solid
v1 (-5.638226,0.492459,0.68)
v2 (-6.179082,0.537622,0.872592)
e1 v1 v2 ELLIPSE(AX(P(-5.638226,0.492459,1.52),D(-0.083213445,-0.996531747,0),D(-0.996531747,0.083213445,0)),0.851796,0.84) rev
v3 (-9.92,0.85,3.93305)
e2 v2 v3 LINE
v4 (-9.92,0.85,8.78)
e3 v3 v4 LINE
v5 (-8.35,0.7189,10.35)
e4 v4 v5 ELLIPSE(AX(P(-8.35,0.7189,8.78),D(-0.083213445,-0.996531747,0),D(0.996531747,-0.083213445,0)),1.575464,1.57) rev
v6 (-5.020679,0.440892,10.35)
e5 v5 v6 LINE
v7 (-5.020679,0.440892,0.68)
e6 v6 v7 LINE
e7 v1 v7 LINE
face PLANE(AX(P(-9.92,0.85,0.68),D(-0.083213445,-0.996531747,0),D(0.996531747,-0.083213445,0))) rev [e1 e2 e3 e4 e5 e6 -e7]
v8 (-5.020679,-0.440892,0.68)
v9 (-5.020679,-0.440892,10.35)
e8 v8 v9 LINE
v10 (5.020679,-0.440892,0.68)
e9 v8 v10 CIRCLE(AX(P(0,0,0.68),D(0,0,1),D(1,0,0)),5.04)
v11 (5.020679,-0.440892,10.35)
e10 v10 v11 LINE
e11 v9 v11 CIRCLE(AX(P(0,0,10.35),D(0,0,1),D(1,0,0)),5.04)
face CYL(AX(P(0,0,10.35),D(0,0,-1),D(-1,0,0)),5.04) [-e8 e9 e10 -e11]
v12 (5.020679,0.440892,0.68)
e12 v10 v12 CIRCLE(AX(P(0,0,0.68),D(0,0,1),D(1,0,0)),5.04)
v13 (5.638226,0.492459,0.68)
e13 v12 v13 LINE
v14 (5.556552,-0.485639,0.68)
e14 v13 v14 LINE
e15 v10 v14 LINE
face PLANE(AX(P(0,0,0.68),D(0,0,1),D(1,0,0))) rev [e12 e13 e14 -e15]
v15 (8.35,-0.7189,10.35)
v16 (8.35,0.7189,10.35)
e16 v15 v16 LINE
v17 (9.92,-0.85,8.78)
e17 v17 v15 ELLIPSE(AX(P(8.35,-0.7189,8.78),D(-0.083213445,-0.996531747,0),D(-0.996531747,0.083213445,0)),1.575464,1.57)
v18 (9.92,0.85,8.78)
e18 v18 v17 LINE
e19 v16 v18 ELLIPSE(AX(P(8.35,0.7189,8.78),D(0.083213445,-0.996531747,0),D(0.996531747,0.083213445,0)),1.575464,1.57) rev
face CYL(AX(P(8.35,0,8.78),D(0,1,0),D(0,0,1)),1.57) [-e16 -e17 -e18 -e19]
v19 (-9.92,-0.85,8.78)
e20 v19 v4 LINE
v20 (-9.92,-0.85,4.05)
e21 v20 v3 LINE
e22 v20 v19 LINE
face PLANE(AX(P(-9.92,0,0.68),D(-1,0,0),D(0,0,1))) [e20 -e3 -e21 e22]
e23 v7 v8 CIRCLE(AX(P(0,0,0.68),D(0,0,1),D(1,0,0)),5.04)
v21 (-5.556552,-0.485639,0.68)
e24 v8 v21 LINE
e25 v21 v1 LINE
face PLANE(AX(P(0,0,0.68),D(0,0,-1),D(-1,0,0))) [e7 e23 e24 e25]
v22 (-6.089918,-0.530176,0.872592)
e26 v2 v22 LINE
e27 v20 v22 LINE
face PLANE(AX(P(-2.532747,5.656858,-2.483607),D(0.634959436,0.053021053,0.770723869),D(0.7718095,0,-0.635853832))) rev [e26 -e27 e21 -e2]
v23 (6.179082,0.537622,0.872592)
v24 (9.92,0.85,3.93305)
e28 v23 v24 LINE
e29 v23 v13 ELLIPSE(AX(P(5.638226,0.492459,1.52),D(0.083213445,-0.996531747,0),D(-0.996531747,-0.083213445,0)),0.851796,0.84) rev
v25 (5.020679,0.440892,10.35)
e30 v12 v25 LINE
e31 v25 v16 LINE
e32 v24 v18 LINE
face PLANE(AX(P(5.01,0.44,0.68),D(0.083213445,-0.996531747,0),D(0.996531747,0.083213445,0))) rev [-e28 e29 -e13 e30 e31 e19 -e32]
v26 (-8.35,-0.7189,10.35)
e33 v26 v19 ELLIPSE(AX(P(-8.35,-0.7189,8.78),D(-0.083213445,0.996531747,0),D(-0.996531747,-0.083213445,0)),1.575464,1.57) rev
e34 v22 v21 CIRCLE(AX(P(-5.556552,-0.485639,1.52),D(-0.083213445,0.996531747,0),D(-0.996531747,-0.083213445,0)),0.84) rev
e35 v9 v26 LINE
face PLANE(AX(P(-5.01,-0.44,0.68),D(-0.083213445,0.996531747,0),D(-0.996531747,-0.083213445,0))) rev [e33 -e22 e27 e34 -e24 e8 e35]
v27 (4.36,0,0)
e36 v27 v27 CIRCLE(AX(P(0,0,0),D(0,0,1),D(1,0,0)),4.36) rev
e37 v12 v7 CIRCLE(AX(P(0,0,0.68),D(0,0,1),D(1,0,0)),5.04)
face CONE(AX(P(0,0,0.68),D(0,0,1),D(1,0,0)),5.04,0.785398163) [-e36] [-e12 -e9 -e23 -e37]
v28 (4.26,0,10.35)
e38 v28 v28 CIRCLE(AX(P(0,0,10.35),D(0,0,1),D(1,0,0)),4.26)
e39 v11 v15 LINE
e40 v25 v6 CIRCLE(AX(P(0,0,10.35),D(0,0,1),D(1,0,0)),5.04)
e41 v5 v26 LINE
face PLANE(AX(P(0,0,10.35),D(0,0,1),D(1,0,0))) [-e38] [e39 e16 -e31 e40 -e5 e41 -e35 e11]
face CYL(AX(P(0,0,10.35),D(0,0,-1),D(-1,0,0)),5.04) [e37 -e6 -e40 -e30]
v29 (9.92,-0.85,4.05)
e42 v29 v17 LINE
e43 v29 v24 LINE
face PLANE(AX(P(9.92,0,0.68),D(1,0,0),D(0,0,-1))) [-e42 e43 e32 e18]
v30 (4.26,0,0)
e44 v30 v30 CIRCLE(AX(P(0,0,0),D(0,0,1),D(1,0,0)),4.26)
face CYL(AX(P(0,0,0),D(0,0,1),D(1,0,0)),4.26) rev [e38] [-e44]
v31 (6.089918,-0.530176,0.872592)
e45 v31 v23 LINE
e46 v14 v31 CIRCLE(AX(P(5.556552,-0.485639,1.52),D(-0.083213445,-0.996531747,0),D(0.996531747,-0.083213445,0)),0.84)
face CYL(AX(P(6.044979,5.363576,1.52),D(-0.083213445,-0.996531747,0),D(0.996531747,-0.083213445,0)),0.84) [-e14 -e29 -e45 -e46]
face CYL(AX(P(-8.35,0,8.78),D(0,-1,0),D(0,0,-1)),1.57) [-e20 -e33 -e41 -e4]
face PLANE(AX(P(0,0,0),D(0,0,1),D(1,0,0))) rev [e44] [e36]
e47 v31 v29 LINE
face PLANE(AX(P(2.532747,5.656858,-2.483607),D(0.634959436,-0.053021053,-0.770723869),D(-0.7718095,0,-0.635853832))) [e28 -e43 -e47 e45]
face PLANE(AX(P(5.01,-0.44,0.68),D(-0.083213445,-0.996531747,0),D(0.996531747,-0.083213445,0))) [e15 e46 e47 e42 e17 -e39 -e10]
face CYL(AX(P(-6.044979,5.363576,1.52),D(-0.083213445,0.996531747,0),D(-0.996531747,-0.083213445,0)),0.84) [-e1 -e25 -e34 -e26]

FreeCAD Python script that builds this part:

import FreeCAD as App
import Part
import Sketcher
from FreeCAD import Vector
Q = App.Units.Quantity


def edges_at(feature, points):
    """Names of the edges that pass closest to the given points."""
    edges = feature.Shape.Edges
    near = lambda p: min(range(len(edges)), key=lambda i: edges[i].distToShape(Part.Vertex(*p))[0])
    return sorted({f"Edge{near(p) + 1}" for p in points})

doc = App.newDocument("Part")
body = doc.addObject("PartDesign::Body", "Body")

# Sketch on XY plane
sketch1 = body.newObject("Sketcher::SketchObject", "Sketch")
sketch1.AttachmentSupport = (doc.getObject("XY_Plane"), [""])
sketch1.MapMode = "FlatFace"
sketch1.addGeometry(Part.Circle(Vector(0, 0, 0), Vector(0, 0, 1), 5), False)
sketch1.addConstraint([
    Sketcher.Constraint("Coincident", 0, 3, -1, 1),
    Sketcher.Constraint("Diameter", 0, Q("10.08 mm")),
])
pad1 = body.newObject("PartDesign::Pad", "Pad")
pad1.Profile = sketch1
pad1.Length = 10.35
doc.recompute()

chamfer = body.newObject("PartDesign::Chamfer", "Chamfer")
chamfer.Base = (pad1, edges_at(pad1, [(-5.04, 0, 0)]))
chamfer.Size = 0.68

# Sketch on XY plane
sketch2 = body.newObject("Sketcher::SketchObject", "Sketch001")
sketch2.AttachmentSupport = (doc.getObject("XY_Plane"), [""])
sketch2.MapMode = "FlatFace"
sketch2.AttachmentOffset = App.Placement(Vector(0, 0, 10.35), App.Rotation())
sketch2.addGeometry(Part.Circle(Vector(0, 0, 0), Vector(0, 0, 1), 4.3), False)
sketch2.addConstraint([
    Sketcher.Constraint("Coincident", 0, 3, -1, 1),
    Sketcher.Constraint("Diameter", 0, Q("8.52 mm")),
])
pocket1 = body.newObject("PartDesign::Pocket", "Pocket")
pocket1.Profile = sketch2
pocket1.Length = 10.35

# Sketch on XY plane
sketch3 = body.newObject("Sketcher::SketchObject", "Sketch002")
sketch3.AttachmentSupport = (doc.getObject("XY_Plane"), [""])
sketch3.MapMode = "FlatFace"
sketch3.AttachmentOffset = App.Placement(Vector(0, 0, 10.35), App.Rotation())
sketch3.addGeometry([
    Part.LineSegment(Vector(9.9, 0.8, 0), Vector(5, 0.4, 0)),  # 0
    Part.LineSegment(Vector(5, 0.4, 0), Vector(5, -0.4, 0)),  # 1
    Part.LineSegment(Vector(5, -0.4, 0), Vector(9.9, -0.8, 0)),  # 2
    Part.LineSegment(Vector(9.9, -0.8, 0), Vector(9.9, 0.8, 0)),  # 3
    Part.LineSegment(Vector(-5, 0.4, 0), Vector(-9.9, 0.8, 0)),  # 4
    Part.LineSegment(Vector(-9.9, 0.8, 0), Vector(-9.9, -0.8, 0)),  # 5
    Part.LineSegment(Vector(-9.9, -0.8, 0), Vector(-5, -0.4, 0)),  # 6
    Part.LineSegment(Vector(-5, -0.4, 0), Vector(-5, 0.4, 0)),  # 7
], False)
sketch3.addConstraint([
    Sketcher.Constraint("Coincident", 0, 2, 1, 1),
    Sketcher.Constraint("Coincident", 1, 2, 2, 1),
    Sketcher.Constraint("Coincident", 2, 2, 3, 1),
    Sketcher.Constraint("Coincident", 3, 2, 0, 1),
    Sketcher.Constraint("Coincident", 4, 2, 5, 1),
    Sketcher.Constraint("Coincident", 5, 2, 6, 1),
    Sketcher.Constraint("Coincident", 6, 2, 7, 1),
    Sketcher.Constraint("Coincident", 7, 2, 4, 1),
    Sketcher.Constraint("Vertical", 1),
    Sketcher.Constraint("Vertical", 3),
    Sketcher.Constraint("Vertical", 5),
    Sketcher.Constraint("Vertical", 7),
    Sketcher.Constraint("Symmetric", 2, 2, 4, 2, -1, 1),
    Sketcher.Constraint("Symmetric", 0, 2, 6, 2, -1, 1),
    Sketcher.Constraint("Parallel", 2, 4),
    Sketcher.Constraint("Parallel", 0, 6),
    Sketcher.Constraint("Horizontal", 3, 2, 4, 2),
    Sketcher.Constraint("Horizontal", 1, 2, 6, 2),
    Sketcher.Constraint("DistanceY", 3, 1, 3, 2, Q("1.7 mm")),
    Sketcher.Constraint("DistanceY", 1, 2, 1, 1, Q("0.88 mm")),
    Sketcher.Constraint("DistanceX", -1, 1, 0, 2, Q("5.01 mm")),
    Sketcher.Constraint("DistanceX", -1, 1, 2, 2, Q("9.92 mm")),
])
pad2 = body.newObject("PartDesign::Pad", "Pad001")
pad2.Profile = sketch3
pad2.Length = 9.67
pad2.Reversed = True

# Sketch on an angled plane
sketch4 = body.newObject("Sketcher::SketchObject", "Sketch003")
sketch4.Placement = App.Placement(Vector(0.001795, -0.0215, 0), App.Rotation(Vector(-0.996531747, -0.083213445, 0), Vector(0, 0, -1), Vector(0.083213445, -0.996531747, 0), "ZXY"))
sketch4.addGeometry([
    Part.LineSegment(Vector(10, -0.7, 0), Vector(5.9, -0.7, 0)),
    Part.LineSegment(Vector(5.9, -0.7, 0), Vector(10, -4.1, 0)),
    Part.LineSegment(Vector(10, -4.1, 0), Vector(10, -0.7, 0)),
], False)
sketch4.addConstraint([
    Sketcher.Constraint("Coincident", 0, 2, 1, 1),
    Sketcher.Constraint("Coincident", 1, 2, 2, 1),
    Sketcher.Constraint("Coincident", 2, 2, 0, 1),
    Sketcher.Constraint("Horizontal", 0),
    Sketcher.Constraint("Vertical", 2),
    Sketcher.Constraint("DistanceY", 2, 1, 2, 2, Q("3.37 mm")),
    Sketcher.Constraint("DistanceY", 0, 2, -1, 1, Q("0.68 mm")),
    Sketcher.Constraint("Distance", 1, Q("5.289018 mm")),
    Sketcher.Constraint("DistanceX", -1, 1, 0, 2, Q("5.879954 mm")),
])
pocket2 = body.newObject("PartDesign::Pocket", "Pocket001")
pocket2.Profile = sketch4
pocket2.Type = "ThroughAll"
pocket2.Midplane = True

# Sketch on an angled plane
sketch5 = body.newObject("Sketcher::SketchObject", "Sketch004")
sketch5.Placement = App.Placement(Vector(-0.001795, -0.0215, 0), App.Rotation(Vector(-0.996531747, 0.083213445, 0), Vector(0, 0, -1), Vector(-0.083213445, -0.996531747, 0), "ZXY"))
sketch5.addGeometry([
    Part.LineSegment(Vector(-10, -4.1, 0), Vector(-5.9, -0.7, 0)),
    Part.LineSegment(Vector(-5.9, -0.7, 0), Vector(-10, -0.7, 0)),
    Part.LineSegment(Vector(-10, -0.7, 0), Vector(-10, -4.1, 0)),
], False)
sketch5.addConstraint([
    Sketcher.Constraint("Coincident", 0, 2, 1, 1),
    Sketcher.Constraint("Coincident", 1, 2, 2, 1),
    Sketcher.Constraint("Coincident", 2, 2, 0, 1),
    Sketcher.Constraint("Horizontal", 1),
    Sketcher.Constraint("Vertical", 2),
    Sketcher.Constraint("DistanceY", 2, 2, 2, 1, Q("3.37 mm")),
    Sketcher.Constraint("DistanceY", 0, 2, -1, 1, Q("0.68 mm")),
    Sketcher.Constraint("Distance", 0, Q("5.289018 mm")),
    Sketcher.Constraint("DistanceX", 0, 2, -1, 1, Q("5.879954 mm")),
])
pocket3 = body.newObject("PartDesign::Pocket", "Pocket002")
pocket3.Profile = sketch5
pocket3.Type = "ThroughAll"
pocket3.Midplane = True
doc.recompute()

fillet = body.newObject("PartDesign::Fillet", "Fillet")
fillet.Base = (pocket3, edges_at(pocket3, [(5.901, 0.004, 0.68)]))
fillet.Radius = 0.84
doc.recompute()

fillet2 = body.newObject("PartDesign::Fillet", "Fillet001")
fillet2.Base = (fillet, edges_at(fillet, [(-5.901, 0.004, 0.68)]))
fillet2.Radius = 0.84
doc.recompute()

fillet3 = body.newObject("PartDesign::Fillet", "Fillet002")
fillet3.Base = (fillet2, edges_at(fillet2, [(-9.92, 0, 10.35)]))
fillet3.Radius = 1.57
doc.recompute()

fillet4 = body.newObject("PartDesign::Fillet", "Fillet003")
fillet4.Base = (fillet3, edges_at(fillet3, [(9.92, 0, 10.35)]))
fillet4.Radius = 1.57

doc.recompute()
